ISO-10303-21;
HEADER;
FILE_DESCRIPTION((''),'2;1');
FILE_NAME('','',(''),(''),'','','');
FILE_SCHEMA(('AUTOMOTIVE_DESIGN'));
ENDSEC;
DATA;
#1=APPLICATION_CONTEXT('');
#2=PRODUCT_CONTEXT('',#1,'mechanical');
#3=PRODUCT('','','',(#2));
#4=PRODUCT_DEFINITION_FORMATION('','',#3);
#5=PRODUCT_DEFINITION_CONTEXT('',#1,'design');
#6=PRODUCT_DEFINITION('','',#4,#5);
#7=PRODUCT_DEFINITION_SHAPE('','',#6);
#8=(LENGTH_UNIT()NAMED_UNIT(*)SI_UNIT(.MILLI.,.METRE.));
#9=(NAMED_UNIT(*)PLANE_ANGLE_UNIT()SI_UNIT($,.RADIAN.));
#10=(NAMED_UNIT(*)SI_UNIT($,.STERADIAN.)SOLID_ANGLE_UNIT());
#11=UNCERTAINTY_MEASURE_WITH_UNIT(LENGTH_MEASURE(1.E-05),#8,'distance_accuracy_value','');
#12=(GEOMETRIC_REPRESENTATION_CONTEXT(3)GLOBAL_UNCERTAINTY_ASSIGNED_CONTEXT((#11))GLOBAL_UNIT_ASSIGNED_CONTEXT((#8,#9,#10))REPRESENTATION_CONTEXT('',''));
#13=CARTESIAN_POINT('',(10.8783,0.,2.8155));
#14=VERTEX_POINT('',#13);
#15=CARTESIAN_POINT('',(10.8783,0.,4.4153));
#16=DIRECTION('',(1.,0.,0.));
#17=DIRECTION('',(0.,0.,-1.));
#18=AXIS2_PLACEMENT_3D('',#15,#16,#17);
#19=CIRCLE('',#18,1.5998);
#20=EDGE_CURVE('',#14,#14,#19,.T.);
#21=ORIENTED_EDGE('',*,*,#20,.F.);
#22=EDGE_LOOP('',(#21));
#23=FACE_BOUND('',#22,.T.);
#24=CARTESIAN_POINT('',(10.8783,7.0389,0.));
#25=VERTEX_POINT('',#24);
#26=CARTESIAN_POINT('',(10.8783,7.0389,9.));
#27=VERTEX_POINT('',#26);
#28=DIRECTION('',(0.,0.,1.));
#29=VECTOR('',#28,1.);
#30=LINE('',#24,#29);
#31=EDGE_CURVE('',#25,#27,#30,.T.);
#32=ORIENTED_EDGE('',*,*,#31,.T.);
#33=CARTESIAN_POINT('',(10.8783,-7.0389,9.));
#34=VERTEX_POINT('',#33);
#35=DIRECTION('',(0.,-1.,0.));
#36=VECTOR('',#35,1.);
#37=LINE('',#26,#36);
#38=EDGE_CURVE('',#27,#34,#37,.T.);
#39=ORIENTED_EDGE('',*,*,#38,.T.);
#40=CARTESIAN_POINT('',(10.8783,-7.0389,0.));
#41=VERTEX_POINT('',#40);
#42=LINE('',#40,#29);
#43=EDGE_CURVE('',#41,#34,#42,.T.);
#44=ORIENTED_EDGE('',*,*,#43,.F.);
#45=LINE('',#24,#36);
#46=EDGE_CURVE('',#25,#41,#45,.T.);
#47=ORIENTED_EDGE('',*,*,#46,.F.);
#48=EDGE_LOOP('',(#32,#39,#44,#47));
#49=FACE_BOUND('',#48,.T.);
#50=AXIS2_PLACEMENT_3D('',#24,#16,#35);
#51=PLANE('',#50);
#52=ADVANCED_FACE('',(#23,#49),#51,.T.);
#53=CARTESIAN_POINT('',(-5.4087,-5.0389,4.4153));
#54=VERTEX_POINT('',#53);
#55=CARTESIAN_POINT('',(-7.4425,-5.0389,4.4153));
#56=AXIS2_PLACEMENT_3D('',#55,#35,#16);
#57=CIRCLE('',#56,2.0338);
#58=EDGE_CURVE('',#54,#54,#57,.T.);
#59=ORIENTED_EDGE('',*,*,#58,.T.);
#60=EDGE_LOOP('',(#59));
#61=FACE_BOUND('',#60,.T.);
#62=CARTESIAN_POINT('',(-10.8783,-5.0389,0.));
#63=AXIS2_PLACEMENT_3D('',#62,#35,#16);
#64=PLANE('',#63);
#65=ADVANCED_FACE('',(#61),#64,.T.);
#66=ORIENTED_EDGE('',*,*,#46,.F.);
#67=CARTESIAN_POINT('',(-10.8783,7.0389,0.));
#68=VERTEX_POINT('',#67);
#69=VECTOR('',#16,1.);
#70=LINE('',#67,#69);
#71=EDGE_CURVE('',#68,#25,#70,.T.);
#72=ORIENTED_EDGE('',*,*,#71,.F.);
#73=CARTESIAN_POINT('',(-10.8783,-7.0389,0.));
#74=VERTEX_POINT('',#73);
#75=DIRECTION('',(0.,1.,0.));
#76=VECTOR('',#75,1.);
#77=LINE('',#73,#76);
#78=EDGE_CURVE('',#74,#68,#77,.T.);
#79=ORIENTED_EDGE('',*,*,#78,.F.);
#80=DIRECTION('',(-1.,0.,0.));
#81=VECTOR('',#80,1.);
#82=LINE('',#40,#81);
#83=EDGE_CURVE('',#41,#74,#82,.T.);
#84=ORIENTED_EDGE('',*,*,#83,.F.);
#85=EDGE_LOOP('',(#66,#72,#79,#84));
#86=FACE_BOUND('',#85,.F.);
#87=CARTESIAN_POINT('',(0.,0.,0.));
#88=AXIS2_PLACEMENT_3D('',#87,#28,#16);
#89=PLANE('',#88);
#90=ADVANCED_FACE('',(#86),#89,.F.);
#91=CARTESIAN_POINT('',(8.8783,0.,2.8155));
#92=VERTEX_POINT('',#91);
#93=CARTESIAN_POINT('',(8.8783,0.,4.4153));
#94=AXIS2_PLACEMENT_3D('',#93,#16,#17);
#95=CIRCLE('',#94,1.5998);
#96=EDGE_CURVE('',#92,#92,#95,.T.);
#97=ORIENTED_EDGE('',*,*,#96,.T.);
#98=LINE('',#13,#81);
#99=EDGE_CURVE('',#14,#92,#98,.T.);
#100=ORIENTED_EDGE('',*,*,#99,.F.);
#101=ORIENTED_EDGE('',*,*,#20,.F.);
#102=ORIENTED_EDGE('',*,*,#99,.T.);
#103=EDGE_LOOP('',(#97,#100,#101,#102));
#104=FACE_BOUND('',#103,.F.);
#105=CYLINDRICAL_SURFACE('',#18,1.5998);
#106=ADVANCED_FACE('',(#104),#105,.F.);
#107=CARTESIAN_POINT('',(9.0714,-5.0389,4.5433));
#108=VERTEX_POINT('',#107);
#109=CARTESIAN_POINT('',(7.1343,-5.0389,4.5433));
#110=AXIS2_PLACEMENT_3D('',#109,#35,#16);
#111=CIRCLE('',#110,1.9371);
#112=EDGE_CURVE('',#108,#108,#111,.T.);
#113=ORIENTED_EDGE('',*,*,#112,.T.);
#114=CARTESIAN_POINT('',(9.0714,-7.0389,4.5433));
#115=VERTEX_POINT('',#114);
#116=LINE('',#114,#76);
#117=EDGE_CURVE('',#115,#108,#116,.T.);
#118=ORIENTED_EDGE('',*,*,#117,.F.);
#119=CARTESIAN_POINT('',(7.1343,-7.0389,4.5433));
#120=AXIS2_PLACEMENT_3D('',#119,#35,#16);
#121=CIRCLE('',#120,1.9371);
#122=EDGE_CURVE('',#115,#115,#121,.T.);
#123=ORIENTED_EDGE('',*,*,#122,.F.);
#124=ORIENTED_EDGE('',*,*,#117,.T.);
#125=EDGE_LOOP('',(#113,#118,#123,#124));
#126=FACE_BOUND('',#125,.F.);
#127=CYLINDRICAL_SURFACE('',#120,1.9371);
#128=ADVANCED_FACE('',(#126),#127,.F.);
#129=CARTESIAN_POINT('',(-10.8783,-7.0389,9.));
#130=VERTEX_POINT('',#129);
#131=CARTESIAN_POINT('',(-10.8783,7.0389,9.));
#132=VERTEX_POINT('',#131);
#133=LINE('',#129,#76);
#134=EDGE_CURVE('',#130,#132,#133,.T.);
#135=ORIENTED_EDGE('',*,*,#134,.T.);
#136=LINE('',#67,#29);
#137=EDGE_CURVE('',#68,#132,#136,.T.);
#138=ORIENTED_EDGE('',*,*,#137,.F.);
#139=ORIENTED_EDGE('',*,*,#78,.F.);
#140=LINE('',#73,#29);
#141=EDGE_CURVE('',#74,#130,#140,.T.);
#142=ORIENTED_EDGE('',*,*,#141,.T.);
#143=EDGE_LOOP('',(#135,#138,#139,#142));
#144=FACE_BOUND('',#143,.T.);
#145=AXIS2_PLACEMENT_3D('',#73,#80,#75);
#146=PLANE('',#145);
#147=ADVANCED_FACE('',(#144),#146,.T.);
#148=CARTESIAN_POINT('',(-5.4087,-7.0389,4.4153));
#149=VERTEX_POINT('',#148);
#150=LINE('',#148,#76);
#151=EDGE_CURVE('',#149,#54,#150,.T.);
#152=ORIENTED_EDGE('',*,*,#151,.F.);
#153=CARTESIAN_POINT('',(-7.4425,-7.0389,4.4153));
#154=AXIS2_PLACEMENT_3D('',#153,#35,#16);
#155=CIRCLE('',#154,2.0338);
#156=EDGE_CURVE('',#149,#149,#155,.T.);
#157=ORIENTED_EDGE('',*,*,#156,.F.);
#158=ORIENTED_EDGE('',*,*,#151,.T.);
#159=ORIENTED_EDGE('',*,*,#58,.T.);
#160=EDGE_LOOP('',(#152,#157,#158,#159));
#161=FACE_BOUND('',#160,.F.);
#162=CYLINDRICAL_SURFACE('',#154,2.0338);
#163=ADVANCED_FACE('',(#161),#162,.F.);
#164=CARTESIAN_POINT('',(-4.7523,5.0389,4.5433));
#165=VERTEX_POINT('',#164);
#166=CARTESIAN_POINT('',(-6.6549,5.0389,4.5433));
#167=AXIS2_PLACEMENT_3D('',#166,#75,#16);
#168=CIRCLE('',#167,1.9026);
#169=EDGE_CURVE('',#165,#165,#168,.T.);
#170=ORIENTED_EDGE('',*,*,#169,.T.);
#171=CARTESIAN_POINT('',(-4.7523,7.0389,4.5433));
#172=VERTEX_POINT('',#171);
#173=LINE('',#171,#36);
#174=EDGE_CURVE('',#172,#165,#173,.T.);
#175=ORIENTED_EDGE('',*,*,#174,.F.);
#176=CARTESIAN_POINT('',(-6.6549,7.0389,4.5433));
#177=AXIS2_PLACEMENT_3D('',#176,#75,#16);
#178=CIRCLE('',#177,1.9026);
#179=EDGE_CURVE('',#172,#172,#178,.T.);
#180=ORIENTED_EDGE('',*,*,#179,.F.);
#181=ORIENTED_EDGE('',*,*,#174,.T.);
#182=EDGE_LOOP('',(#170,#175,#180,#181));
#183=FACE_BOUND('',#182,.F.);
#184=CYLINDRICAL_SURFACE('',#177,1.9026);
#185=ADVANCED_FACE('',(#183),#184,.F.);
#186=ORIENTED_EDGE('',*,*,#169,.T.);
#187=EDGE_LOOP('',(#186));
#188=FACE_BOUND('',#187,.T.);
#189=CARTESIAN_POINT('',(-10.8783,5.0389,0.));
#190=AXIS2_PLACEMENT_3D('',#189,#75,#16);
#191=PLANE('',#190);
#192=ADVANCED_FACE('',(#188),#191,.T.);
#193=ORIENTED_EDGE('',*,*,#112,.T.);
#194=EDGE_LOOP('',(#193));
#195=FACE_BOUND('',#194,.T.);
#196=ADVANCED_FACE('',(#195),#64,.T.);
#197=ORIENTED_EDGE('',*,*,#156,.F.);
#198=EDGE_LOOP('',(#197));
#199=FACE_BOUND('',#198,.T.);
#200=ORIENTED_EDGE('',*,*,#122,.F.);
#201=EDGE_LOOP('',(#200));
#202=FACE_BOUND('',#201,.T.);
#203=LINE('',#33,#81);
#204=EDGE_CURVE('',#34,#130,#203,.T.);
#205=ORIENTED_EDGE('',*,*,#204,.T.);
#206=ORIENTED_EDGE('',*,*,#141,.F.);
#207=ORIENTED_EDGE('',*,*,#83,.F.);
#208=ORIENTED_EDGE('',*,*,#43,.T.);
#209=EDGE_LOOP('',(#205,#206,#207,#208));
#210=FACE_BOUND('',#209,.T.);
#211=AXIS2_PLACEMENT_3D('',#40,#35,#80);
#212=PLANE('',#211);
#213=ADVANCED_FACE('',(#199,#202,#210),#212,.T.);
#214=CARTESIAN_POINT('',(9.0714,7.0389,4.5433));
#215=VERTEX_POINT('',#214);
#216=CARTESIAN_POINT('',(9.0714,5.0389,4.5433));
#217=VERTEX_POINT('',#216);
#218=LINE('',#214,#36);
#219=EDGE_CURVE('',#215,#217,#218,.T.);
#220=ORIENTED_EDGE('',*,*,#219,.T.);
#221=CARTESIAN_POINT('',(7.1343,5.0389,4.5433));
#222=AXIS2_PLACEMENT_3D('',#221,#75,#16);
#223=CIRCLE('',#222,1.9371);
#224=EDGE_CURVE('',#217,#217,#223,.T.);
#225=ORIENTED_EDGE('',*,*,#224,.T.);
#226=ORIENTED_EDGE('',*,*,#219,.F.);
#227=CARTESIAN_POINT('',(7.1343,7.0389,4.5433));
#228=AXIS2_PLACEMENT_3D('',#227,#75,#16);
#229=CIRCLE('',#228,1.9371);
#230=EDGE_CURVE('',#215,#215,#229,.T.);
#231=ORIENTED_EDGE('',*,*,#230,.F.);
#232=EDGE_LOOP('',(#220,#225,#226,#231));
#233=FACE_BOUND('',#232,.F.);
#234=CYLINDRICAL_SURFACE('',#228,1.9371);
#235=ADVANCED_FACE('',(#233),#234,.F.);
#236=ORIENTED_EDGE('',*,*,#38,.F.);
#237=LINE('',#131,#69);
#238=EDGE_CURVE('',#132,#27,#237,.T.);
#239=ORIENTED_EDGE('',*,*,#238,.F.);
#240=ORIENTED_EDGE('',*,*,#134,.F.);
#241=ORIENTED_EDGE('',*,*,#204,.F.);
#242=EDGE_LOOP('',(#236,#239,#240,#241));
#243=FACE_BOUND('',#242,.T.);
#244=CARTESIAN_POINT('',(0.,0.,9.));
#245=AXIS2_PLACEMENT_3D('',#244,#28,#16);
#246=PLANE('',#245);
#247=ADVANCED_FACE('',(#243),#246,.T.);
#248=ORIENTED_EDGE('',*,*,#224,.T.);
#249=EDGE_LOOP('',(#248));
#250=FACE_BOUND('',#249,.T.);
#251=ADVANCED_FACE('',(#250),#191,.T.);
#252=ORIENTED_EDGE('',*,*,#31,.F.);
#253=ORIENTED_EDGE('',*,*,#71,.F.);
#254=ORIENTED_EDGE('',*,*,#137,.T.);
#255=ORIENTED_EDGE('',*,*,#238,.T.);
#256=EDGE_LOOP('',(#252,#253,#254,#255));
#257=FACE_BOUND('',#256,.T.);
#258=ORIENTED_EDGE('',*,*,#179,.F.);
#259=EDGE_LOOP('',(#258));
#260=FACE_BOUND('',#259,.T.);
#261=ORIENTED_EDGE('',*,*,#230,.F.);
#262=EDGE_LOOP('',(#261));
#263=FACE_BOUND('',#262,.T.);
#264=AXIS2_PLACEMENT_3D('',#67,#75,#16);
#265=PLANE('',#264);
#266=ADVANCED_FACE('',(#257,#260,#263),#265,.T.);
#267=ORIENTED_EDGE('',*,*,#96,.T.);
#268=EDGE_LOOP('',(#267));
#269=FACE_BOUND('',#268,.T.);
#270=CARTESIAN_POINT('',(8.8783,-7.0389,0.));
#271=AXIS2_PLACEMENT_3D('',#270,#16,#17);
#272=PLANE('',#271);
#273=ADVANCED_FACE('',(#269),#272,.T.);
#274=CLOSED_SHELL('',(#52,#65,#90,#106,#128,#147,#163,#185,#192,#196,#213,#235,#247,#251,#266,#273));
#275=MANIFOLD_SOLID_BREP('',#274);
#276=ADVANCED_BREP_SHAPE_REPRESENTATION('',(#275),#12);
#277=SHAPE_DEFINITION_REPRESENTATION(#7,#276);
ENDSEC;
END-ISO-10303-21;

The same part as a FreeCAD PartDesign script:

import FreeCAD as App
import Part
import Sketcher

V = App.Vector
Q = App.Units.Quantity

doc = App.newDocument("Part")
body = doc.addObject("PartDesign::Body", "Body")

# Sketch on XY plane
sketch1 = body.newObject("Sketcher::SketchObject", "Sketch")
sketch1.AttachmentSupport = (doc.getObject("XY_Plane"), [""])
sketch1.MapMode = "FlatFace"
sketch1.addGeometry([
    Part.LineSegment(V(-10.8783, -7.0389, 0), V(10.8783, -7.0389, 0)),
    Part.LineSegment(V(10.8783, -7.0389, 0), V(10.8783, 7.0389, 0)),
    Part.LineSegment(V(10.8783, 7.0389, 0), V(-10.8783, 7.0389, 0)),
    Part.LineSegment(V(-10.8783, 7.0389, 0), V(-10.8783, -7.0389, 0)),
], False)
sketch1.addConstraint([
    Sketcher.Constraint("Coincident", 0, 2, 1, 1),
    Sketcher.Constraint("Coincident", 1, 2, 2, 1),
    Sketcher.Constraint("Coincident", 2, 2, 3, 1),
    Sketcher.Constraint("Coincident", 3, 2, 0, 1),
    Sketcher.Constraint("Horizontal", 0),
    Sketcher.Constraint("Vertical", 1),
    Sketcher.Constraint("Horizontal", 2),
    Sketcher.Constraint("Vertical", 3),
    Sketcher.Constraint("Symmetric", 0, 2, 2, 2, -1, 1),
    Sketcher.Constraint("DistanceX", 0, 1, 0, 2, Q("21.7566 mm")),
    Sketcher.Constraint("DistanceY", 1, 1, 1, 2, Q("14.0778 mm")),
])
pad1 = body.newObject("PartDesign::Pad", "Pad")
pad1.Profile = sketch1
pad1.Length = 9

# Sketch on XZ plane
sketch2 = body.newObject("Sketcher::SketchObject", "Sketch001")
sketch2.AttachmentSupport = (doc.getObject("XZ_Plane"), [""])
sketch2.MapMode = "FlatFace"
sketch2.AttachmentOffset = App.Placement(V(0, 0, -7.0389), App.Rotation())
sketch2.addGeometry([
    Part.Circle(V(-6.6549, 4.5433, 0), V(0, 0, 1), 1.9026),
    Part.Circle(V(7.1343, 4.5433, 0), V(0, 0, 1), 1.9371),
], False)
sketch2.addConstraint([
    Sketcher.Constraint("Horizontal", 0, 3, 1, 3),
    Sketcher.Constraint("Diameter", 0, Q("3.8052 mm")),
    Sketcher.Constraint("Diameter", 1, Q("3.8742 mm")),
    Sketcher.Constraint("DistanceX", 0, 3, -1, 1, Q("6.655 mm")),
    Sketcher.Constraint("DistanceY", -1, 1, 0, 3, Q("4.5433 mm")),
    Sketcher.Constraint("DistanceX", -1, 1, 1, 3, Q("7.1343 mm")),
])
pocket1 = body.newObject("PartDesign::Pocket", "Pocket")
pocket1.Profile = sketch2
pocket1.Length = 2
pocket1.Reversed = True

# Sketch on YZ plane
sketch3 = body.newObject("Sketcher::SketchObject", "Sketch002")
sketch3.AttachmentSupport = (doc.getObject("YZ_Plane"), [""])
sketch3.MapMode = "FlatFace"
sketch3.AttachmentOffset = App.Placement(V(0, 0, 10.8783), App.Rotation())
sketch3.addGeometry(Part.Circle(V(0, 4.4153, 0), V(0, 0, 1), 1.5998), False)
sketch3.addConstraint([
    Sketcher.Constraint("PointOnObject", 0, 3, -2),
    Sketcher.Constraint("Diameter", 0, Q("3.1996 mm")),
    Sketcher.Constraint("DistanceY", -1, 1, 0, 3, Q("4.4153 mm")),
])
pocket2 = body.newObject("PartDesign::Pocket", "Pocket001")
pocket2.Profile = sketch3
pocket2.Length = 2

# Sketch on XZ plane
sketch4 = body.newObject("Sketcher::SketchObject", "Sketch003")
sketch4.AttachmentSupport = (doc.getObject("XZ_Plane"), [""])
sketch4.MapMode = "FlatFace"
sketch4.AttachmentOffset = App.Placement(V(0, 0, 7.0389), App.Rotation())
sketch4.addGeometry([
    Part.Circle(V(7.1343, 4.5433, 0), V(0, 0, 1), 1.9371),
    Part.Circle(V(-7.4425, 4.4153, 0), V(0, 0, 1), 2.0338),
], False)
sketch4.addConstraint([
    Sketcher.Constraint("Diameter", 0, Q("3.8742 mm")),
    Sketcher.Constraint("Diameter", 1, Q("4.0676 mm")),
    Sketcher.Constraint("DistanceY", 1, 3, 0, 3, Q("0.128 mm")),
    Sketcher.Constraint("DistanceX", -1, 1, 0, 3, Q("7.1343 mm")),
    Sketcher.Constraint("DistanceY", -1, 1, 0, 3, Q("4.5433 mm")),
    Sketcher.Constraint("DistanceX", 1, 3, -1, 1, Q("7.4425 mm")),
])
pocket3 = body.newObject("PartDesign::Pocket", "Pocket002")
pocket3.Profile = sketch4
pocket3.Length = 2

doc.recompute()
